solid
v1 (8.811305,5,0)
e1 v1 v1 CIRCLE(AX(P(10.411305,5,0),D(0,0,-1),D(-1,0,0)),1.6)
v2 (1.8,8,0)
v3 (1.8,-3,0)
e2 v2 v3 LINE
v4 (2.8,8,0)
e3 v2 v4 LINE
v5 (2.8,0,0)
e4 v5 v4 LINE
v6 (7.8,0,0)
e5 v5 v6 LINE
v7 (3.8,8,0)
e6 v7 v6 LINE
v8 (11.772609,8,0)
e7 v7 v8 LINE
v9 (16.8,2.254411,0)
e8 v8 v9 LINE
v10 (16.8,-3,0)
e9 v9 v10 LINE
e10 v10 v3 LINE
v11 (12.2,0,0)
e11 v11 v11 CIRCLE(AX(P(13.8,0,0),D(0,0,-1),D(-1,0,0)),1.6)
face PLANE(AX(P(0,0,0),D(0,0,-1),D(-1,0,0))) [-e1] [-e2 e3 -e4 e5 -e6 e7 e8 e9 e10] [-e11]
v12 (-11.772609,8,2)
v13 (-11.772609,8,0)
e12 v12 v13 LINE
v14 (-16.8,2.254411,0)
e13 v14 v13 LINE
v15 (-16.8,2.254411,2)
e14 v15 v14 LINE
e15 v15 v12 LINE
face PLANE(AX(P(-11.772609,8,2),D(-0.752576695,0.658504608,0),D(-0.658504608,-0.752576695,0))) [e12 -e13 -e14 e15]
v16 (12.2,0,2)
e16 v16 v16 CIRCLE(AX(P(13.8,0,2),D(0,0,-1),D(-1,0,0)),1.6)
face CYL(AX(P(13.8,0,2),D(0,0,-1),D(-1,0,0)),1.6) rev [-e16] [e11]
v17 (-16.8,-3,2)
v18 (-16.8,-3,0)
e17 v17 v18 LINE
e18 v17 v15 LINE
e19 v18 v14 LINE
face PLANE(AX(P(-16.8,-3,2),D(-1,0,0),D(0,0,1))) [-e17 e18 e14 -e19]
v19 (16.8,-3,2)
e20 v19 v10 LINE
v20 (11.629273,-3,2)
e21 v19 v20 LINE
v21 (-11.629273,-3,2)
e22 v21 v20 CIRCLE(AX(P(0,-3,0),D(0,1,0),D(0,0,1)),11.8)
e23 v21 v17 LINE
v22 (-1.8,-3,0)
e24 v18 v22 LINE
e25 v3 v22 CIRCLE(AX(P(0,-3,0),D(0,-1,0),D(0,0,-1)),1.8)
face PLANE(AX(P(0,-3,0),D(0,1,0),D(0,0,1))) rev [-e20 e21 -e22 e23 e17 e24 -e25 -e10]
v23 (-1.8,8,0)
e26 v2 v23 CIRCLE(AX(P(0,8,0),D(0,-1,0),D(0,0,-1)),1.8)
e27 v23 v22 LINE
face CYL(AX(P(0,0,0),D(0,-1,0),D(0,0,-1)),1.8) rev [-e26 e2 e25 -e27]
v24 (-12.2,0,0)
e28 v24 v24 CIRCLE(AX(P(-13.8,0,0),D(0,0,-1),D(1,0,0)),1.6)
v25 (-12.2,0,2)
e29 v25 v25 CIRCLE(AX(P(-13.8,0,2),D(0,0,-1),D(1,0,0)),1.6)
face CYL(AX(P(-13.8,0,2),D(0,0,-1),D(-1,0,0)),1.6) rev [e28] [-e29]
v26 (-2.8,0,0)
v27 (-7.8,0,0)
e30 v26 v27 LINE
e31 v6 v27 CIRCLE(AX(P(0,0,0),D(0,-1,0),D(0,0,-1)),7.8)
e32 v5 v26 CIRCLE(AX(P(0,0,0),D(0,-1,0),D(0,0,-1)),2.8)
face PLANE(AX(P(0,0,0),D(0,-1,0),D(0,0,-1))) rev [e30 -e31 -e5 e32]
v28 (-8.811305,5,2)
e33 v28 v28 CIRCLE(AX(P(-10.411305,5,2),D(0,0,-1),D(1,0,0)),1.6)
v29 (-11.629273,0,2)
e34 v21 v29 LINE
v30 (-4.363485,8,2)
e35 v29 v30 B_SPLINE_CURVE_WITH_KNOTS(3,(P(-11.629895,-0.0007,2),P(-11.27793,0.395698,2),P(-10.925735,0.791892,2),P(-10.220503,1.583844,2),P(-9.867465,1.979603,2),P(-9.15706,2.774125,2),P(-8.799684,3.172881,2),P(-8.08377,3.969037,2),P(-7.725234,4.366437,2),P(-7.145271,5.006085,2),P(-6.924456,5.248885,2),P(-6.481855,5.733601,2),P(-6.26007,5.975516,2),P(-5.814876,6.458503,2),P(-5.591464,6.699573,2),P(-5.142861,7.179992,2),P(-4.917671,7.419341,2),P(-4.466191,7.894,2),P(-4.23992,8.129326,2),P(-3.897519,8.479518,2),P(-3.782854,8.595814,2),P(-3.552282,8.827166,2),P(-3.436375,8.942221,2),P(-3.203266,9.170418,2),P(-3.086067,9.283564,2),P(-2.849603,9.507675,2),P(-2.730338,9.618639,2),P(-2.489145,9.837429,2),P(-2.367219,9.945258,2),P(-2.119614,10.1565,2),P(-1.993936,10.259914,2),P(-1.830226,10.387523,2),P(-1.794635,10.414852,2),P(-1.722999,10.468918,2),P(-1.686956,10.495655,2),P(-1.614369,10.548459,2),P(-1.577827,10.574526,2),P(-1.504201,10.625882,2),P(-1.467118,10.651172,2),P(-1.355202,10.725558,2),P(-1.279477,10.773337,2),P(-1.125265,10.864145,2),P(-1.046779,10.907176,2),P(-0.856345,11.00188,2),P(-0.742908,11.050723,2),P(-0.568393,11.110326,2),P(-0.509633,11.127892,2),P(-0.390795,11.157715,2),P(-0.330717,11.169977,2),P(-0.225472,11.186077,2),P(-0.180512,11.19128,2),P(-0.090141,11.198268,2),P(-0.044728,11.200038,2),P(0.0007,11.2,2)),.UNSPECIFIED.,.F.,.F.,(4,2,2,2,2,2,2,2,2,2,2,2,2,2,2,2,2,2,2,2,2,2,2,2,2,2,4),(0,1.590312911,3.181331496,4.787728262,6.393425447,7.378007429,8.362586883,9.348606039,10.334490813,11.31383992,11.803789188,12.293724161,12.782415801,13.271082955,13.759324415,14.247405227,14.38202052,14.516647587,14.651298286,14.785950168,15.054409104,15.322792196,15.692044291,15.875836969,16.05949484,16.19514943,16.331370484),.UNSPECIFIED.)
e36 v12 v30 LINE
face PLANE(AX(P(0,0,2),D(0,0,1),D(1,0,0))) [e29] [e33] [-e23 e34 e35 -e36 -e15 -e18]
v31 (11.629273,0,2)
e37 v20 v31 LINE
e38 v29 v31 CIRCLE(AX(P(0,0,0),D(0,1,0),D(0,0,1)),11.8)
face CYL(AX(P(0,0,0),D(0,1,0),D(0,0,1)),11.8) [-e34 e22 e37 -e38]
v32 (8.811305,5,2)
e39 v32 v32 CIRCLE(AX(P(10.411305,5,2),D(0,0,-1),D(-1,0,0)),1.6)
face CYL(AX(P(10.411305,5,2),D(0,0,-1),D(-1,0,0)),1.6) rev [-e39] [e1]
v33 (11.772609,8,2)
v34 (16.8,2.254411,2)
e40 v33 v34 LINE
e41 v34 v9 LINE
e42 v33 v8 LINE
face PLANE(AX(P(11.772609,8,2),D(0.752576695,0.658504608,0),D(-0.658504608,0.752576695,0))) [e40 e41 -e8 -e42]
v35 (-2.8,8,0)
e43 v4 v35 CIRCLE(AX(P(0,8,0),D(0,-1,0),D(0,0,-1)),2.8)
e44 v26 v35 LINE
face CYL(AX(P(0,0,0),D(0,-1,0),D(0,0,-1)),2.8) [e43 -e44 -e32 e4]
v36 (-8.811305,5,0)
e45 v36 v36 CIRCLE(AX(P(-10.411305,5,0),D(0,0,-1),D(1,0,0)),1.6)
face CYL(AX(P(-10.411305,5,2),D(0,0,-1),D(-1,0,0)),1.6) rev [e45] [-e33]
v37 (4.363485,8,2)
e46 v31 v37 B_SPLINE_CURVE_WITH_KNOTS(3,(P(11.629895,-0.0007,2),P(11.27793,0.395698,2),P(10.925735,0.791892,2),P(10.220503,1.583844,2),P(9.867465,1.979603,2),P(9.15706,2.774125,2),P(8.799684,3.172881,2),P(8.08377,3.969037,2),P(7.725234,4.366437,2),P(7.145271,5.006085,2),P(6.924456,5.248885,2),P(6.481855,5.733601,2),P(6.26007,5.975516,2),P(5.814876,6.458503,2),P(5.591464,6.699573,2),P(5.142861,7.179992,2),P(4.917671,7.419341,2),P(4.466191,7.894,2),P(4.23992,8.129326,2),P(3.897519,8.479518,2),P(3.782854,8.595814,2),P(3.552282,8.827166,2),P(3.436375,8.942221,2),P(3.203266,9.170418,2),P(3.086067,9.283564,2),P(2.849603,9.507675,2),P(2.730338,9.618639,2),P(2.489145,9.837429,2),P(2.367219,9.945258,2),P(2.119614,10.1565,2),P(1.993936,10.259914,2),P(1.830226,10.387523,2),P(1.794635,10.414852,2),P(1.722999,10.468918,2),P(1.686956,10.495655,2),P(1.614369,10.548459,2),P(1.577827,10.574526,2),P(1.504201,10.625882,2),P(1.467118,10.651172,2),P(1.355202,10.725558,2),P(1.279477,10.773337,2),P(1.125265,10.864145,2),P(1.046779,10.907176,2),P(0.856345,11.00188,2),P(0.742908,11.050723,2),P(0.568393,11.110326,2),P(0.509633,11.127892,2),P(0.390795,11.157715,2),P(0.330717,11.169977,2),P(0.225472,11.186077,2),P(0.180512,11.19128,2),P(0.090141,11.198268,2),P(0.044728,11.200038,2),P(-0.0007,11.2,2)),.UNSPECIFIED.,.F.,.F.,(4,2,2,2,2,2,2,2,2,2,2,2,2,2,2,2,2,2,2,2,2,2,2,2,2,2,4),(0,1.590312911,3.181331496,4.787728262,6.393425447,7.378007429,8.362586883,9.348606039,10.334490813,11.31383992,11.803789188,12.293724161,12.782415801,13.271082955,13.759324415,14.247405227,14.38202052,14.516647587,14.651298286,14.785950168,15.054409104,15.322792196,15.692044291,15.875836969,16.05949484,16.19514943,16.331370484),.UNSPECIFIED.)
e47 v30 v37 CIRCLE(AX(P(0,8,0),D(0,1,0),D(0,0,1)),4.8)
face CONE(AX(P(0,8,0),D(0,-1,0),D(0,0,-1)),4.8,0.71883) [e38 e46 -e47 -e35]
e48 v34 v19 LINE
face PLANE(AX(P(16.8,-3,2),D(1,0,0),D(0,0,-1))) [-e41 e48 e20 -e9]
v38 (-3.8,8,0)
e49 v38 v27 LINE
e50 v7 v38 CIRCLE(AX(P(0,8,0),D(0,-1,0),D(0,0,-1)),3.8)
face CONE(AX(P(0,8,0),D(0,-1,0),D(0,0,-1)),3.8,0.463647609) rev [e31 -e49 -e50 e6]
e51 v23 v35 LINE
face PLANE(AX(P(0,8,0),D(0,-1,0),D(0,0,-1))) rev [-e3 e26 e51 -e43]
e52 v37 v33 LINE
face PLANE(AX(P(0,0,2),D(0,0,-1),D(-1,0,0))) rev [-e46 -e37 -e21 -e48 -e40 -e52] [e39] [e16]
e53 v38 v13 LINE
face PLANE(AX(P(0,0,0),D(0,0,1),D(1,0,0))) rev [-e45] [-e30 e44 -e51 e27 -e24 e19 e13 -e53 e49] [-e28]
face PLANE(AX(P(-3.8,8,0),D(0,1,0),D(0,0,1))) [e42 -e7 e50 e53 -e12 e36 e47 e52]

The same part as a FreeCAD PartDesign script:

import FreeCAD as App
import Part
import Sketcher


def add_polygon(sketch, points):
    """Adds a closed chain of lines whose ends are joined by coincident constraints."""
    first, n = sketch.GeometryCount, len(points)
    for a, b in zip(points, points[1:] + points[:1]):
        sketch.addGeometry(Part.LineSegment(App.Vector(*a, 0), App.Vector(*b, 0)), False)
    for i in range(n):
        sketch.addConstraint(Sketcher.Constraint("Coincident", first + i, 2, first + (i + 1) % n, 1))

doc = App.newDocument("Part")
body = doc.addObject("PartDesign::Body", "Body")

# Sketch on XY plane
sketch1 = doc.addObject("Sketcher::SketchObject", "Sketch")
body.addObject(sketch1)
sketch1.AttachmentSupport = (doc.XY_Plane, [""])
sketch1.MapMode = "FlatFace"
add_polygon(sketch1, [(-1.8, -3), (-1.8, 8), (-2.8, 8), (-2.8, 0), (-7.8, 0), (-3.8, 8), (-10.8, 0), (-10.8, -3)])  # lines 0-7
sketch1.addConstraint([
    Sketcher.Constraint("Vertical", 0),
    Sketcher.Constraint("Horizontal", 1),
    Sketcher.Constraint("Vertical", 2),
    Sketcher.Constraint("Horizontal", 3),
    Sketcher.Constraint("Vertical", 6),
    Sketcher.Constraint("Horizontal", 7),
    Sketcher.Constraint("PointOnObject", 2, 2, -1),
    Sketcher.Constraint("PointOnObject", 5, 2, -1),
    Sketcher.Constraint("Horizontal", 1, 2, 4, 2),
    Sketcher.Constraint("DistanceX", 1, 2, 1, 1, 1.0),
    Sketcher.Constraint("DistanceX", 3, 2, 3, 1, 5.0),
    Sketcher.Constraint("DistanceX", 7, 1, 7, 2, 9.0),
    Sketcher.Constraint("DistanceY", 0, 1, 0, 2, 11.0),
    Sketcher.Constraint("DistanceY", 2, 2, 2, 1, 8.0),
    Sketcher.Constraint("DistanceX", 4, 2, 1, 2, 1.0),
    Sketcher.Constraint("DistanceX", 0, 2, -1, 1, 1.8),
])
revolution = doc.addObject("PartDesign::Revolution", "Revolution")
body.addObject(revolution)
revolution.Profile = sketch1
revolution.ReferenceAxis = (sketch1, ["V_Axis"])
revolution.Angle = 180
body2 = doc.addObject("PartDesign::Body", "Body001")

# Sketch on XY plane
sketch2 = doc.addObject("Sketcher::SketchObject", "Sketch001")
body2.addObject(sketch2)
sketch2.AttachmentSupport = (doc.getObject("XY_Plane001"), [""])
sketch2.MapMode = "FlatFace"
add_polygon(sketch2, [(16.8, -3), (10.8, -3), (10.8, 0), (3.8, 8), (11.8, 8), (16.8, 2.3)])  # lines 0-5
sketch2.addGeometry(Part.Circle(App.Vector(13.8, 0, 0), App.Vector(0, 0, 1), 1.6), False)  # 6
sketch2.addGeometry(Part.Circle(App.Vector(10.4, 5, 0), App.Vector(0, 0, 1), 1.6), False)  # 7
sketch2.addConstraint([
    Sketcher.Constraint("Horizontal", 0),
    Sketcher.Constraint("Vertical", 1),
    Sketcher.Constraint("Horizontal", 3),
    Sketcher.Constraint("Vertical", 5),
    Sketcher.Constraint("Equal", 6, 7),
    Sketcher.Constraint("PointOnObject", 6, 3, -1),
    Sketcher.Constraint("PointOnObject", 1, 2, -1),
    Sketcher.Constraint("Parallel", 2, 4),
    Sketcher.Constraint("Diameter", 6, 3.2),
    Sketcher.Constraint("DistanceX", 0, 2, 0, 1, 6.0),
    Sketcher.Constraint("DistanceY", 1, 1, 1, 2, 3.0),
    Sketcher.Constraint("DistanceY", -1, 1, 7, 3, 5.0),
    Sketcher.Constraint("DistanceY", -1, 1, 2, 2, 8.0),
    Sketcher.Constraint("DistanceX", 0, 2, 6, 3, 3.0),
    Sketcher.Constraint("DistanceX", 2, 2, 1, 2, 7.0),
    Sketcher.Constraint("DistanceX", -1, 1, 6, 3, 13.8),
    Sketcher.Constraint("DistanceX", 3, 1, 3, 2, 7.972609),
    Sketcher.Constraint("DistanceX", -1, 1, 7, 3, 10.411305),
])
pad1 = doc.addObject("PartDesign::Pad", "Pad")
body2.addObject(pad1)
pad1.Profile = sketch2
pad1.Length = 2
body3 = doc.addObject("PartDesign::Body", "Body002")

# Sketch on XY plane
sketch3 = doc.addObject("Sketcher::SketchObject", "Sketch002")
body3.addObject(sketch3)
sketch3.AttachmentSupport = (doc.getObject("XY_Plane002"), [""])
sketch3.MapMode = "FlatFace"
add_polygon(sketch3, [(-3.8, 8), (-10.8, 0), (-10.8, -3), (-16.8, -3), (-16.8, 2.3), (-11.8, 8)])  # lines 0-5
sketch3.addGeometry(Part.Circle(App.Vector(-13.8, 0, 0), App.Vector(0, 0, 1), 1.6), False)  # 6
sketch3.addGeometry(Part.Circle(App.Vector(-10.4, 5, 0), App.Vector(0, 0, 1), 1.6), False)  # 7
sketch3.addConstraint([
    Sketcher.Constraint("Vertical", 1),
    Sketcher.Constraint("Horizontal", 2),
    Sketcher.Constraint("Vertical", 3),
    Sketcher.Constraint("Horizontal", 5),
    Sketcher.Constraint("Equal", 6, 7),
    Sketcher.Constraint("PointOnObject", 6, 3, -1),
    Sketcher.Constraint("PointOnObject", 0, 2, -1),
    Sketcher.Constraint("Parallel", 0, 4),
    Sketcher.Constraint("Diameter", 6, 3.2),
    Sketcher.Constraint("DistanceX", 2, 2, 2, 1, 6.0),
    Sketcher.Constraint("DistanceY", 1, 2, 1, 1, 3.0),
    Sketcher.Constraint("DistanceY", -1, 1, 7, 3, 5.0),
    Sketcher.Constraint("DistanceY", -1, 1, 4, 2, 8.0),
    Sketcher.Constraint("DistanceX", 6, 3, 0, 2, 3.0),
    Sketcher.Constraint("DistanceX", 0, 2, 5, 2, 7.0),
    Sketcher.Constraint("DistanceX", 6, 3, -1, 1, 13.8),
    Sketcher.Constraint("DistanceX", 5, 1, 5, 2, 7.972609),
    Sketcher.Constraint("DistanceX", 7, 3, -1, 1, 10.411305),
])
pad2 = doc.addObject("PartDesign::Pad", "Pad001")
body3.addObject(pad2)
pad2.Profile = sketch3
pad2.Length = 2
body.AllowCompound = True
doc.recompute()

boolean = doc.addObject("PartDesign::Boolean", "Boolean")
body.addObject(boolean)
boolean.Type = "Fuse"
boolean.addObjects([body2])
doc.recompute()

boolean2 = doc.addObject("PartDesign::Boolean", "Boolean001")
body.addObject(boolean2)
boolean2.Type = "Fuse"
boolean2.addObjects([body3])

# Sketch on XY plane
sketch4 = doc.addObject("Sketcher::SketchObject", "Sketch003")
body.addObject(sketch4)
sketch4.AttachmentSupport = (doc.XY_Plane, [""])
sketch4.MapMode = "FlatFace"
add_polygon(sketch4, [(11.8, 0), (11.8, -3), (10.8, -3), (10.8, 0), (3.8, 8), (4.8, 8)])  # lines 0-5
sketch4.addConstraint([
    Sketcher.Constraint("Vertical", 0),
    Sketcher.Constraint("Horizontal", 1),
    Sketcher.Constraint("Vertical", 2),
    Sketcher.Constraint("Horizontal", 4),
    Sketcher.Constraint("PointOnObject", 2, 2, -1),
    Sketcher.Constraint("PointOnObject", 5, 2, -1),
    Sketcher.Constraint("Parallel", 3, 5),
    Sketcher.Constraint("DistanceX", 1, 2, 1, 1, 1.0),
    Sketcher.Constraint("DistanceY", 0, 2, 0, 1, 3.0),
    Sketcher.Constraint("DistanceY", -1, 1, 3, 2, 8.0),
    Sketcher.Constraint("DistanceX", 3, 2, 2, 2, 7.0),
    Sketcher.Constraint("DistanceX", -1, 1, 0, 2, 11.8),
])
revolution2 = doc.addObject("PartDesign::Revolution", "Revolution001")
body.addObject(revolution2)
revolution2.Profile = sketch4
revolution2.ReferenceAxis = (sketch4, ["V_Axis"])
revolution2.Angle = 180
revolution2.Reversed = True

doc.recompute()
